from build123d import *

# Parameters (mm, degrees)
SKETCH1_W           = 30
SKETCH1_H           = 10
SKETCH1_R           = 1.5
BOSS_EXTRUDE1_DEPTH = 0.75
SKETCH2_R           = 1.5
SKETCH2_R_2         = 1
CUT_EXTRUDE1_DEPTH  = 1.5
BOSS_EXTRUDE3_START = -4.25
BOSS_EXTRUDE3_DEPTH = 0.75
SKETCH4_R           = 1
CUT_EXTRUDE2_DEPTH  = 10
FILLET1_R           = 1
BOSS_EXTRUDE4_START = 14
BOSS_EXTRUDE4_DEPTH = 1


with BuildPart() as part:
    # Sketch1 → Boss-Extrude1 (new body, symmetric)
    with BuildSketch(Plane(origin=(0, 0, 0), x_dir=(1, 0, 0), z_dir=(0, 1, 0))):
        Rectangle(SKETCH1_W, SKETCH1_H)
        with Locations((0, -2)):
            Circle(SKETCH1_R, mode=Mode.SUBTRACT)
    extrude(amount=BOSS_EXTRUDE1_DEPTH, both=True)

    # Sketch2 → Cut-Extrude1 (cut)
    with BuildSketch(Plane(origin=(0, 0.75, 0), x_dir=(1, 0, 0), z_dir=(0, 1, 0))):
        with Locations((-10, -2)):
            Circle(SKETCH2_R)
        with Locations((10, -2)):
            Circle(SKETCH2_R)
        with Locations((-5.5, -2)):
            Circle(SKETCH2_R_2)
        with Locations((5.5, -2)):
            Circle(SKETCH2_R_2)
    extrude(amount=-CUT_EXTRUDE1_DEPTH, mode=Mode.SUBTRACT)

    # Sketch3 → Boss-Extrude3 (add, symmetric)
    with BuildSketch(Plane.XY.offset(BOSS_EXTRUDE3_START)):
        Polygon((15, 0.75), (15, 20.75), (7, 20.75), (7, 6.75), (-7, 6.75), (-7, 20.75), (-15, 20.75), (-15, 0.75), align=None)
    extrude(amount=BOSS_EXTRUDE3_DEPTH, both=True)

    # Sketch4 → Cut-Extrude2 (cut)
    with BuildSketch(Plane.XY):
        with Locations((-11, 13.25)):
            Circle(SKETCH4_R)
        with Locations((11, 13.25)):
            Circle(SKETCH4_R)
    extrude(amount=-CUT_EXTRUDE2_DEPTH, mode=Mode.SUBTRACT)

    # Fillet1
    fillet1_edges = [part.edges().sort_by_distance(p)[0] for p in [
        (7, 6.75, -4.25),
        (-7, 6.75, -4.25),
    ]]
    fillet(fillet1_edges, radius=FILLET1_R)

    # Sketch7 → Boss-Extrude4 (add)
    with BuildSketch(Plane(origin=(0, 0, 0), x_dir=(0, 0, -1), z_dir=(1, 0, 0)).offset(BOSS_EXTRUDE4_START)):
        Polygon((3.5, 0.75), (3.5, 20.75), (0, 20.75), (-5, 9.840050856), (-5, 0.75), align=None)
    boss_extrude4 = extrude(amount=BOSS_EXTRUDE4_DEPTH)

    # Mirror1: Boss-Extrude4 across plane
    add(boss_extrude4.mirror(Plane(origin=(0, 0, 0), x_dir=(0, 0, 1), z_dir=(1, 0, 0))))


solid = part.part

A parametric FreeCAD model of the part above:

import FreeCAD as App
import Part
import Sketcher


def edges_at(feature, points):
    """Names of the edges that pass closest to the given points."""
    edges = feature.Shape.Edges
    near = lambda p: min(range(len(edges)), key=lambda i: edges[i].distToShape(Part.Vertex(*p))[0])
    return sorted({f"Edge{near(p) + 1}" for p in points})


def add_polygon(sketch, points):
    """Adds a closed chain of lines whose ends are joined by coincident constraints."""
    first, n = sketch.GeometryCount, len(points)
    for a, b in zip(points, points[1:] + points[:1]):
        sketch.addGeometry(Part.LineSegment(App.Vector(*a, 0), App.Vector(*b, 0)), False)
    for i in range(n):
        sketch.addConstraint(Sketcher.Constraint("Coincident", first + i, 2, first + (i + 1) % n, 1))

doc = App.newDocument("Part")
params = doc.addObject("Spreadsheet::Sheet", "Params")
for row, (alias, value) in enumerate([
    ("sketch1_diameter", "3 mm"),
    ("sketch1_width", "30 mm"),
    ("sketch1_height", "10 mm"),
    ("pad1_length", "1.5 mm"),
    ("sketch2_diameter", "3 mm"),
    ("sketch2_diameter2", "2 mm"),
    ("pocket1_length", "1.5 mm"),
    ("sketch3_width", "8 mm"),
    ("sketch3_width2", "14 mm"),
    ("sketch3_height", "20 mm"),
    ("pad2_length", "1.5 mm"),
    ("sketch4_diameter", "2 mm"),
    ("pocket2_length", "10 mm"),
    ("fillet_radius", "1 mm"),
    ("sketch5_width", "20 mm"),
    ("sketch5_height", "3.5 mm"),
    ("sketch5_height2", "8.5 mm"),
    ("pad3_length", "1 mm"),
], start=1):
    params.set(f"A{row}", alias)
    params.set(f"B{row}", "=" + value)
    params.setAlias(f"B{row}", alias)

body = doc.addObject("PartDesign::Body", "Body")

sketch1 = body.newObject("Sketcher::SketchObject", "Sketch")
sketch1.AttachmentSupport = (doc.getObject("XZ_Plane"), [""])
sketch1.MapMode = "FlatFace"
add_polygon(sketch1, [(-15, -5), (-15, 5), (15, 5), (15, -5)])
sketch1.addGeometry(Part.Circle(App.Vector(0, 2, 0), App.Vector(0, 0, 1), 1.5), False)
sketch1.addConstraint([
    Sketcher.Constraint("Vertical", 0),
    Sketcher.Constraint("Horizontal", 1),
    Sketcher.Constraint("Vertical", 2),
    Sketcher.Constraint("Horizontal", 3),
    Sketcher.Constraint("Symmetric", 0, 2, 2, 2, -1, 1),
    Sketcher.Constraint("PointOnObject", 4, 3, -2),
    Sketcher.Constraint("Diameter", 4, 3.0),
    Sketcher.Constraint("DistanceX", 1, 1, 1, 2, 30.0),
    Sketcher.Constraint("DistanceY", 0, 1, 0, 2, 10.0),
    Sketcher.Constraint("DistanceY", -1, 1, 4, 3, 2.0),
])
sketch1.setExpression("Constraints[10]", "Params.sketch1_diameter")
sketch1.setExpression("Constraints[11]", "Params.sketch1_width")
sketch1.setExpression("Constraints[12]", "Params.sketch1_height")
pad1 = body.newObject("PartDesign::Pad", "Pad")
pad1.Profile = sketch1
pad1.setExpression("Length", "Params.pad1_length")
pad1.Midplane = True

sketch2 = body.newObject("Sketcher::SketchObject", "Sketch001")
sketch2.AttachmentSupport = (doc.getObject("XZ_Plane"), [""])
sketch2.MapMode = "FlatFace"
sketch2.AttachmentOffset = App.Placement(App.Vector(0, 0, -0.75), App.Rotation())
sketch2.addGeometry([
    Part.Circle(App.Vector(-10, 2, 0), App.Vector(0, 0, 1), 1.5),
    Part.Circle(App.Vector(10, 2, 0), App.Vector(0, 0, 1), 1.5),
    Part.Circle(App.Vector(-5.5, 2, 0), App.Vector(0, 0, 1), 1),
    Part.Circle(App.Vector(5.5, 2, 0), App.Vector(0, 0, 1), 1),
], False)
sketch2.addConstraint([
    Sketcher.Constraint("Equal", 0, 1),
    Sketcher.Constraint("Equal", 2, 3),
    Sketcher.Constraint("Symmetric", 0, 3, 1, 3, -2),
    Sketcher.Constraint("Symmetric", 2, 3, 3, 3, -2),
    Sketcher.Constraint("Horizontal", 1, 3, 2, 3),
    Sketcher.Constraint("Diameter", 0, 3.0),
    Sketcher.Constraint("Diameter", 2, 2.0),
    Sketcher.Constraint("DistanceX", 0, 3, -1, 1, 10.0),
    Sketcher.Constraint("DistanceY", -1, 1, 0, 3, 2.0),
    Sketcher.Constraint("DistanceX", 2, 3, 3, 3, 11.0),
])
sketch2.setExpression("Constraints[5]", "Params.sketch2_diameter")
sketch2.setExpression("Constraints[6]", "Params.sketch2_diameter2")
pocket1 = body.newObject("PartDesign::Pocket", "Pocket")
pocket1.Profile = sketch2
pocket1.setExpression("Length", "Params.pocket1_length")
pocket1.Reversed = True

sketch3 = body.newObject("Sketcher::SketchObject", "Sketch002")
sketch3.AttachmentSupport = (doc.getObject("XY_Plane"), [""])
sketch3.MapMode = "FlatFace"
sketch3.AttachmentOffset = App.Placement(App.Vector(0, 0, -4.25), App.Rotation())
add_polygon(sketch3, [(15, 0.75), (15, 20.75), (7, 20.75), (7, 6.75), (-7, 6.75), (-7, 20.75), (-15, 20.75), (-15, 0.75)])
sketch3.addConstraint([
    Sketcher.Constraint("Vertical", 0),
    Sketcher.Constraint("Horizontal", 1),
    Sketcher.Constraint("Vertical", 2),
    Sketcher.Constraint("Horizontal", 3),
    Sketcher.Constraint("Vertical", 4),
    Sketcher.Constraint("Horizontal", 5),
    Sketcher.Constraint("Vertical", 6),
    Sketcher.Constraint("Horizontal", 7),
    Sketcher.Constraint("Symmetric", 1, 2, 4, 2, -2),
    Sketcher.Constraint("Equal", 1, 5),
    Sketcher.Constraint("Equal", 3, 2),
    Sketcher.Constraint("DistanceX", 1, 2, 1, 1, 8.0),
    Sketcher.Constraint("DistanceX", 3, 2, 3, 1, 14.0),
    Sketcher.Constraint("DistanceY", 0, 1, 0, 2, 20.0),
    Sketcher.Constraint("DistanceY", -1, 1, 0, 2, 20.75),
])
sketch3.setExpression("Constraints[19]", "Params.sketch3_width")
sketch3.setExpression("Constraints[20]", "Params.sketch3_width2")
sketch3.setExpression("Constraints[21]", "Params.sketch3_height")
pad2 = body.newObject("PartDesign::Pad", "Pad001")
pad2.Profile = sketch3
pad2.setExpression("Length", "Params.pad2_length")
pad2.Midplane = True

sketch4 = body.newObject("Sketcher::SketchObject", "Sketch003")
sketch4.AttachmentSupport = (doc.getObject("XY_Plane"), [""])
sketch4.MapMode = "FlatFace"
sketch4.addGeometry([
    Part.Circle(App.Vector(-11, 13.25, 0), App.Vector(0, 0, 1), 1),
    Part.Circle(App.Vector(11, 13.25, 0), App.Vector(0, 0, 1), 1),
], False)
sketch4.addConstraint([
    Sketcher.Constraint("Equal", 0, 1),
    Sketcher.Constraint("Symmetric", 0, 3, 1, 3, -2),
    Sketcher.Constraint("Diameter", 0, 2.0),
    Sketcher.Constraint("DistanceX", 0, 3, -1, 1, 11.0),
    Sketcher.Constraint("DistanceY", -1, 1, 0, 3, 13.25),
])
sketch4.setExpression("Constraints[2]", "Params.sketch4_diameter")
pocket2 = body.newObject("PartDesign::Pocket", "Pocket001")
pocket2.Profile = sketch4
pocket2.setExpression("Length", "Params.pocket2_length")
doc.recompute()

fillet = body.newObject("PartDesign::Fillet", "Fillet")
fillet.Base = (pocket2, edges_at(pocket2, [(7, 6.75, -4.25), (-7, 6.75, -4.25)]))
fillet.setExpression("Radius", "Params.fillet_radius")

sketch5 = body.newObject("Sketcher::SketchObject", "Sketch004")
sketch5.AttachmentSupport = (doc.getObject("YZ_Plane"), [""])
sketch5.MapMode = "FlatFace"
sketch5.AttachmentOffset = App.Placement(App.Vector(0, 0, 14), App.Rotation())
add_polygon(sketch5, [(0.75, -3.5), (20.75, -3.5), (20.75, 0), (9.840051, 5), (0.75, 5)])
sketch5.addConstraint([
    Sketcher.Constraint("Horizontal", 0),
    Sketcher.Constraint("Vertical", 1),
    Sketcher.Constraint("Horizontal", 3),
    Sketcher.Constraint("Vertical", 4),
    Sketcher.Constraint("PointOnObject", 1, 2, -1),
    Sketcher.Constraint("DistanceX", 0, 1, 0, 2, 20.0),
    Sketcher.Constraint("DistanceY", 1, 1, 1, 2, 3.5),
    Sketcher.Constraint("DistanceY", 4, 2, 4, 1, 8.5),
    Sketcher.Constraint("DistanceX", -1, 1, 0, 2, 20.75),
    Sketcher.Constraint("DistanceX", 3, 2, 3, 1, 9.090051),
])
sketch5.setExpression("Constraints[10]", "Params.sketch5_width")
sketch5.setExpression("Constraints[11]", "Params.sketch5_height")
sketch5.setExpression("Constraints[12]", "Params.sketch5_height2")
pad3 = body.newObject("PartDesign::Pad", "Pad002")
pad3.Profile = sketch5
pad3.setExpression("Length", "Params.pad3_length")
doc.recompute()

mirrored = body.newObject("PartDesign::Mirrored", "Mirrored")
mirrored.Originals = [pad3]
mirrored.MirrorPlane = (doc.getObject("YZ_Plane"), [""])
body.Tip = mirrored

doc.recompute()
